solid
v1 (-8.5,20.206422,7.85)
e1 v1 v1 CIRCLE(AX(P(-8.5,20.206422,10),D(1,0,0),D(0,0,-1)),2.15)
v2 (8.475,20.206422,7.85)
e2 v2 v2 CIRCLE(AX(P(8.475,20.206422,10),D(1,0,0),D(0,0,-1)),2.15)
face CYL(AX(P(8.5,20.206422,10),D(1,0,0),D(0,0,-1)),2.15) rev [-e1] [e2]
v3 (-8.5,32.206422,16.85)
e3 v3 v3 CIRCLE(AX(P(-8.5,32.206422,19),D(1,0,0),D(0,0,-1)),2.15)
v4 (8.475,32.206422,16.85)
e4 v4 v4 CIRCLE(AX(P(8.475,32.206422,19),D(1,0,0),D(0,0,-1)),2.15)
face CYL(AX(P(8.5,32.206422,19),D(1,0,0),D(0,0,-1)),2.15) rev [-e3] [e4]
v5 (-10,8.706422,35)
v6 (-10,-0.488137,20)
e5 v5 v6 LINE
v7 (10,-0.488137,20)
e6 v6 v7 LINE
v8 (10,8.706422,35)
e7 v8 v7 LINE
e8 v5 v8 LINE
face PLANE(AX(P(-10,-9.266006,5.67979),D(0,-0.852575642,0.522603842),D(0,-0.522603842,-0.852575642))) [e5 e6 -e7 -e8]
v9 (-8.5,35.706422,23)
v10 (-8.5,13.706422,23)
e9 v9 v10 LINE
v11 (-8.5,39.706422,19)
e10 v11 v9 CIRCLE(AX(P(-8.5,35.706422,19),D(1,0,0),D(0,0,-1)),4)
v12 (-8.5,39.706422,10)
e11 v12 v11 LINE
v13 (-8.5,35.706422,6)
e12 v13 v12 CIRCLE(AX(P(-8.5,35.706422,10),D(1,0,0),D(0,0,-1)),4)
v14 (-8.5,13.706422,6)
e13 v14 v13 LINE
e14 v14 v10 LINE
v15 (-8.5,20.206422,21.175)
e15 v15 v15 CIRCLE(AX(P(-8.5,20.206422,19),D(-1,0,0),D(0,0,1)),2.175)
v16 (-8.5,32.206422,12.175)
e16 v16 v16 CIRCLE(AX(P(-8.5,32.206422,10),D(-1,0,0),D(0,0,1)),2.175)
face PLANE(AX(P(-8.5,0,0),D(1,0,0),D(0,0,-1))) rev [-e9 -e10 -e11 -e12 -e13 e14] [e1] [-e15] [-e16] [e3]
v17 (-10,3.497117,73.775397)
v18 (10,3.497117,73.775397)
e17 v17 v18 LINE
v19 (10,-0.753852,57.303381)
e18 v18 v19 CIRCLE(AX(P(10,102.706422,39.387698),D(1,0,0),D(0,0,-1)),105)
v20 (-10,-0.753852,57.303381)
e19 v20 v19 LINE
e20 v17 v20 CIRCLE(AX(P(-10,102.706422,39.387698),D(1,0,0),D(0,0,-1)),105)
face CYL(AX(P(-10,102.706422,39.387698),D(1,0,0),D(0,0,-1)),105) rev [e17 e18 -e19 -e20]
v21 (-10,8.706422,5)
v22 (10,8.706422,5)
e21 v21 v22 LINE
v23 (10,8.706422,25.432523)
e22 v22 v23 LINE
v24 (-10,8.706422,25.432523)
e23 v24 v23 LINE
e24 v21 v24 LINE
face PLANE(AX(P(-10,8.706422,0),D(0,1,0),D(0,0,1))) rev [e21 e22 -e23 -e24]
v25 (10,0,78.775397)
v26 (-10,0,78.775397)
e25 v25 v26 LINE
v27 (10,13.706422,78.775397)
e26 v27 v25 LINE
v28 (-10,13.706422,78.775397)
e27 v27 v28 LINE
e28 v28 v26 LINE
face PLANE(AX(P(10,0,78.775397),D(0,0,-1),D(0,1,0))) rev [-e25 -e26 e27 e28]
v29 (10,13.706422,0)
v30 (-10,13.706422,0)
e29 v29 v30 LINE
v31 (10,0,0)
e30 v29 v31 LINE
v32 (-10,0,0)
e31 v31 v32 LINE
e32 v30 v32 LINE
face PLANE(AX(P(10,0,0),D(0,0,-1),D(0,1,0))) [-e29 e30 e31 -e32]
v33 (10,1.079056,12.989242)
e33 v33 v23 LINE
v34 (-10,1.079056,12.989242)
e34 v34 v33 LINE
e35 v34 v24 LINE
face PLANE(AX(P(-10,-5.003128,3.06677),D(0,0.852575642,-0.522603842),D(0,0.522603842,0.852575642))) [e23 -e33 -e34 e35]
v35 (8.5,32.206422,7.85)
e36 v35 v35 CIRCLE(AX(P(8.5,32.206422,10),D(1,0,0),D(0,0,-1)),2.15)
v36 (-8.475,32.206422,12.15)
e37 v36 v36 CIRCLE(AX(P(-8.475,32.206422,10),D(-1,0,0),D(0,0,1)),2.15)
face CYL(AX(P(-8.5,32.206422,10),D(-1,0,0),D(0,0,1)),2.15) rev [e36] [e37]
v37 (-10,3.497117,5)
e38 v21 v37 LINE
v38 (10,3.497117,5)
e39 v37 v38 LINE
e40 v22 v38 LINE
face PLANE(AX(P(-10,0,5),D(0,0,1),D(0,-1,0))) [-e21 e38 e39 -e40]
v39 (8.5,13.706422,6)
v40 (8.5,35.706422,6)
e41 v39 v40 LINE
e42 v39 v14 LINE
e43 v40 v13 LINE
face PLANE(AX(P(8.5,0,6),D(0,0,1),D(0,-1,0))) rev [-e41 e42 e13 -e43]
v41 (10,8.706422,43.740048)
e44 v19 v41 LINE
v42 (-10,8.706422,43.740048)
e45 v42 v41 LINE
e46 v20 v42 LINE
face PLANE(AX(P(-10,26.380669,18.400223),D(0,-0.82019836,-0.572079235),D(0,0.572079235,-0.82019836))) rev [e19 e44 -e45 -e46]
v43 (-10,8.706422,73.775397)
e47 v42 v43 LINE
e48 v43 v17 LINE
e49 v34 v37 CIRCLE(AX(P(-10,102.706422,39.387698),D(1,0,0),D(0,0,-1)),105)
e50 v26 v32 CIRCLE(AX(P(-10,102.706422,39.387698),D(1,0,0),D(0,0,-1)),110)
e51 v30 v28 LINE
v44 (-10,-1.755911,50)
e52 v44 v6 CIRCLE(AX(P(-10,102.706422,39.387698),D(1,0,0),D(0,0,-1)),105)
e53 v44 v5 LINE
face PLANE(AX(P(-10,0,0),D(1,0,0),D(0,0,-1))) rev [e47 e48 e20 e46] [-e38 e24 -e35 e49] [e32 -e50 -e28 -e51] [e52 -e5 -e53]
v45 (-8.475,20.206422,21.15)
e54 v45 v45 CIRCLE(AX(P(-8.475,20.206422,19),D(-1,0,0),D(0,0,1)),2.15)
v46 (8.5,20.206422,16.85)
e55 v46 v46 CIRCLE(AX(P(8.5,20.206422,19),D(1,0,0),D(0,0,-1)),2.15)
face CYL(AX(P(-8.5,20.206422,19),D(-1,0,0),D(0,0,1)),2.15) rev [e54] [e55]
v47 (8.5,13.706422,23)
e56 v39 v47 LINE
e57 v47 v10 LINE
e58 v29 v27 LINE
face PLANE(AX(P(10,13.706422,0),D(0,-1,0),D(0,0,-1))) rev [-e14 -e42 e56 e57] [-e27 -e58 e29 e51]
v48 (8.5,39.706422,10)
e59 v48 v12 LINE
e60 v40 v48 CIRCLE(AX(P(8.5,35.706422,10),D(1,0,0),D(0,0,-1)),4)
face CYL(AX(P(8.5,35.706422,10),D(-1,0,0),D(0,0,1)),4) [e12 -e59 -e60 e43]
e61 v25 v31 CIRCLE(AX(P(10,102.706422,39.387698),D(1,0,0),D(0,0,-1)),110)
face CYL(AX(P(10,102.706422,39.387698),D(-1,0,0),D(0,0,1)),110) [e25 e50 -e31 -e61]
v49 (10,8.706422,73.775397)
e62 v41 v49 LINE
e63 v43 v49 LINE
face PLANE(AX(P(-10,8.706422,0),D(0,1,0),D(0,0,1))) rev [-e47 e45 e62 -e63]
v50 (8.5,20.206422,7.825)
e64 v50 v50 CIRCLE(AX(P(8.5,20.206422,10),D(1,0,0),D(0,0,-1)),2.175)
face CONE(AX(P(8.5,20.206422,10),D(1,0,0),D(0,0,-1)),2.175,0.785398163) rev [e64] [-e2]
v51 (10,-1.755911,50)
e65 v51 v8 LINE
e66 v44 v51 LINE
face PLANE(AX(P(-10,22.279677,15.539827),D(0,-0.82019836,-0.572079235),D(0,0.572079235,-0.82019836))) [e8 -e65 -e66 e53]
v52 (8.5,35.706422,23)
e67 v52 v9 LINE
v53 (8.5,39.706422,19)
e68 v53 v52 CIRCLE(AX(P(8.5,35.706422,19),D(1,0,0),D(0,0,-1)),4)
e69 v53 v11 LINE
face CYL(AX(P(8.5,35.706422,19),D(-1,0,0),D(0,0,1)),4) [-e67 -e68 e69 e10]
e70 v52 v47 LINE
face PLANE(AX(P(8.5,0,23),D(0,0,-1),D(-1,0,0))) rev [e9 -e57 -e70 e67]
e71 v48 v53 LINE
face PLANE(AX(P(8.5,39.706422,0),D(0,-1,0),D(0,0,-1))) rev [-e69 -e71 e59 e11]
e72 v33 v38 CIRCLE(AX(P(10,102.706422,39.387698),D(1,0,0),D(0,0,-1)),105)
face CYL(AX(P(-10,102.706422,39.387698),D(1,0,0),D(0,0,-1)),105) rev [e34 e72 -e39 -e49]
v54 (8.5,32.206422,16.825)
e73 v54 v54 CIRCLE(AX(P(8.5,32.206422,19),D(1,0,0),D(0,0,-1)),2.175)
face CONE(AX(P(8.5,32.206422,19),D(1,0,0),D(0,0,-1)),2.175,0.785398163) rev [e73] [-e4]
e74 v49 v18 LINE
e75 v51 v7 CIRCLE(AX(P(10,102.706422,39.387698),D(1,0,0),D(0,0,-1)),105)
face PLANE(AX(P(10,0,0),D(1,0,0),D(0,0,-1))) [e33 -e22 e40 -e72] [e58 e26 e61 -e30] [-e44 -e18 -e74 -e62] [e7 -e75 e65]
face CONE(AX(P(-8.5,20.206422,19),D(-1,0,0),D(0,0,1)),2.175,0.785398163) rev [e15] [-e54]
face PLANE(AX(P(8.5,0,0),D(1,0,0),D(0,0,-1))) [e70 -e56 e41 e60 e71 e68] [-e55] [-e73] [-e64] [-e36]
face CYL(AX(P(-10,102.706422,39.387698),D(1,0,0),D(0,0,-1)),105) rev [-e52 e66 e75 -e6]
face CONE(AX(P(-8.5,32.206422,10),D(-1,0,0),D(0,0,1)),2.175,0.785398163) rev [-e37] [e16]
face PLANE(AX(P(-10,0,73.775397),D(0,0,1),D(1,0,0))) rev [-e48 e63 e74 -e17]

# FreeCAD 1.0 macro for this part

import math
import FreeCAD as App
import Part
import Sketcher

V = App.Vector

doc = App.newDocument("Part")
body = doc.addObject("PartDesign::Body", "Body")

# Sketch on YZ plane
sketch1 = body.newObject("Sketcher::SketchObject", "Sketch")
sketch1.AttachmentSupport = (doc.getObject("YZ_Plane"), [""])
sketch1.MapMode = "FlatFace"
sketch1.addGeometry(Part.LineSegment(V(14, 0, 0), V(14, 79, 0)), False)
sketch1.addGeometry(Part.LineSegment(V(14, 79, 0), V(0, 79, 0)), False)
sketch1.addGeometry(Part.ArcOfCircle(Part.Circle(V(103, 39, 0), V(0, 0, 1), 110), math.radians(159), math.radians(180)), False)
sketch1.addGeometry(Part.ArcOfCircle(Part.Circle(V(103, 39, 0), V(0, 0, 1), 110), math.radians(180), math.radians(201)), False)
sketch1.addGeometry(Part.LineSegment(V(0, 0, 0), V(14, 0, 0)), False)
sketch1.addConstraint(Sketcher.Constraint("Coincident", 0, 2, 1, 1))
sketch1.addConstraint(Sketcher.Constraint("Coincident", 1, 2, 2, 1))
sketch1.addConstraint(Sketcher.Constraint("Tangent", 2, 2, 3, 1))
sketch1.addConstraint(Sketcher.Constraint("Coincident", 3, 2, 4, 1))
sketch1.addConstraint(Sketcher.Constraint("Coincident", 4, 2, 0, 1))
sketch1.addConstraint(Sketcher.Constraint("Vertical", 0))
sketch1.addConstraint(Sketcher.Constraint("Horizontal", 1))
sketch1.addConstraint(Sketcher.Constraint("Horizontal", 4))
sketch1.addConstraint(Sketcher.Constraint("Coincident", 3, 2, -1, 1))
sketch1.addConstraint(Sketcher.Constraint("Equal", 2, 3))
sketch1.addConstraint(Sketcher.Constraint("PointOnObject", 1, 2, -2))
sketch1.addConstraint(Sketcher.Constraint("Horizontal", 3, 3, 2, 2))
sketch1.addConstraint(Sketcher.Constraint("Radius", 2, 110.0))
sketch1.addConstraint(Sketcher.Constraint("DistanceX", 0, 2, 2, 3, 89.0))
sketch1.addConstraint(Sketcher.Constraint("DistanceY", -1, 1, 2, 3, 39.387698))
pad1 = body.newObject("PartDesign::Pad", "Pad")
pad1.Profile = sketch1
pad1.Type = "TwoLengths"
pad1.Length = 10
pad1.Length2 = 10

# Sketch on YZ plane
sketch2 = body.newObject("Sketcher::SketchObject", "Sketch001")
sketch2.AttachmentSupport = (doc.getObject("YZ_Plane"), [""])
sketch2.MapMode = "FlatFace"
sketch2.AttachmentOffset = App.Placement(V(0, 0, -8.5), App.Rotation())
sketch2.addGeometry(Part.LineSegment(V(13.7, 23, 0), V(13.7, 6, 0)), False)
sketch2.addGeometry(Part.LineSegment(V(13.7, 6, 0), V(35.7, 6, 0)), False)
sketch2.addGeometry(Part.ArcOfCircle(Part.Circle(V(35.7, 10, 0), V(0, 0, 1), 4), math.radians(-90), math.radians(0)), False)
sketch2.addGeometry(Part.LineSegment(V(39.7, 10, 0), V(39.7, 19, 0)), False)
sketch2.addGeometry(Part.ArcOfCircle(Part.Circle(V(35.7, 19, 0), V(0, 0, 1), 4), math.radians(0), math.radians(90)), False)
sketch2.addGeometry(Part.LineSegment(V(35.7, 23, 0), V(13.7, 23, 0)), False)
sketch2.addConstraint(Sketcher.Constraint("Coincident", 0, 2, 1, 1))
sketch2.addConstraint(Sketcher.Constraint("Tangent", 1, 2, 2, 1))
sketch2.addConstraint(Sketcher.Constraint("Tangent", 2, 2, 3, 1))
sketch2.addConstraint(Sketcher.Constraint("Tangent", 3, 2, 4, 1))
sketch2.addConstraint(Sketcher.Constraint("Tangent", 4, 2, 5, 1))
sketch2.addConstraint(Sketcher.Constraint("Coincident", 5, 2, 0, 1))
sketch2.addConstraint(Sketcher.Constraint("Vertical", 0))
sketch2.addConstraint(Sketcher.Constraint("Horizontal", 1))
sketch2.addConstraint(Sketcher.Constraint("Vertical", 3))
sketch2.addConstraint(Sketcher.Constraint("Horizontal", 5))
sketch2.addConstraint(Sketcher.Constraint("Equal", 2, 4))
sketch2.addConstraint(Sketcher.Constraint("Radius", 2, 4.0))
sketch2.addConstraint(Sketcher.Constraint("DistanceX", 1, 1, 1, 2, 22.0))
sketch2.addConstraint(Sketcher.Constraint("DistanceY", 0, 2, 0, 1, 17.0))
sketch2.addConstraint(Sketcher.Constraint("DistanceY", -1, 1, 2, 3, 10.0))
sketch2.addConstraint(Sketcher.Constraint("DistanceX", -1, 1, 2, 3, 35.706422))
pad2 = body.newObject("PartDesign::Pad", "Pad001")
pad2.Profile = sketch2
pad2.Length = 17

# Sketch on YZ plane
sketch3 = body.newObject("Sketcher::SketchObject", "Sketch002")
sketch3.AttachmentSupport = (doc.getObject("YZ_Plane"), [""])
sketch3.MapMode = "FlatFace"
sketch3.AttachmentOffset = App.Placement(V(0, 0, -8.5), App.Rotation())
sketch3.addGeometry(Part.Circle(V(32.2, 10, 0), V(0, 0, 1), 2.1), False)
sketch3.addGeometry(Part.Circle(V(20.2, 19, 0), V(0, 0, 1), 2.1), False)
sketch3.addConstraint(Sketcher.Constraint("Equal", 0, 1))
sketch3.addConstraint(Sketcher.Constraint("Diameter", 0, 4.3))
sketch3.addConstraint(Sketcher.Constraint("DistanceY", -1, 1, 0, 3, 10.0))
sketch3.addConstraint(Sketcher.Constraint("DistanceY", -1, 1, 1, 3, 19.0))
sketch3.addConstraint(Sketcher.Constraint("DistanceX", 1, 3, 0, 3, 12.0))
sketch3.addConstraint(Sketcher.Constraint("DistanceX", -1, 1, 0, 3, 32.206422))
doc.recompute()
hole = body.newObject("PartDesign::Hole", "Hole")
hole.Profile = sketch3
hole.ThreadType = "None"
hole.Diameter = 4.3
hole.DepthType = "ThroughAll"
hole.HoleCutType = "Countersink"
hole.HoleCutDiameter = 4.35
hole.HoleCutCountersinkAngle = 90
hole.Reversed = True

# Sketch on YZ plane
sketch4 = body.newObject("Sketcher::SketchObject", "Sketch003")
sketch4.AttachmentSupport = (doc.getObject("YZ_Plane"), [""])
sketch4.MapMode = "FlatFace"
sketch4.AttachmentOffset = App.Placement(V(0, 0, 8.5), App.Rotation())
sketch4.addGeometry(Part.Circle(V(32.2, 19, 0), V(0, 0, 1), 2.1), False)
sketch4.addGeometry(Part.Circle(V(20.2, 10, 0), V(0, 0, 1), 2.1), False)
sketch4.addConstraint(Sketcher.Constraint("Equal", 0, 1))
sketch4.addConstraint(Sketcher.Constraint("Diameter", 0, 4.3))
sketch4.addConstraint(Sketcher.Constraint("DistanceY", -1, 1, 0, 3, 19.0))
sketch4.addConstraint(Sketcher.Constraint("DistanceY", -1, 1, 1, 3, 10.0))
sketch4.addConstraint(Sketcher.Constraint("DistanceX", 1, 3, 0, 3, 12.0))
sketch4.addConstraint(Sketcher.Constraint("DistanceX", -1, 1, 0, 3, 32.206422))
doc.recompute()
hole2 = body.newObject("PartDesign::Hole", "Hole001")
hole2.Profile = sketch4
hole2.ThreadType = "None"
hole2.Diameter = 4.3
hole2.DepthType = "ThroughAll"
hole2.HoleCutType = "Countersink"
hole2.HoleCutDiameter = 4.35
hole2.HoleCutCountersinkAngle = 90

# Sketch on YZ plane
sketch5 = body.newObject("Sketcher::SketchObject", "Sketch004")
sketch5.AttachmentSupport = (doc.getObject("YZ_Plane"), [""])
sketch5.MapMode = "FlatFace"
sketch5.addGeometry(Part.LineSegment(V(3, 5, 0), V(9, 5, 0)), False)
sketch5.addGeometry(Part.LineSegment(V(9, 5, 0), V(9, 25, 0)), False)
sketch5.addGeometry(Part.LineSegment(V(9, 25, 0), V(1, 13, 0)), False)
sketch5.addGeometry(Part.ArcOfCircle(Part.Circle(V(103, 39, 0), V(0, 0, 1), 105), math.radians(-165.44), math.radians(-160.88)), False)
sketch5.addGeometry(Part.ArcOfCircle(Part.Circle(V(103, 39, 0), V(0, 0, 1), 105), math.radians(-180), math.radians(-169.36)), False)
sketch5.addGeometry(Part.LineSegment(V(0, 20, 0), V(9, 35, 0)), False)
sketch5.addGeometry(Part.LineSegment(V(9, 35, 0), V(-2, 50, 0)), False)
sketch5.addGeometry(Part.ArcOfCircle(Part.Circle(V(103, 39, 0), V(0, 0, 1), 105), math.radians(174.2), math.radians(180)), False)
sketch5.addGeometry(Part.LineSegment(V(-1, 57, 0), V(9, 44, 0)), False)
sketch5.addGeometry(Part.LineSegment(V(9, 44, 0), V(9, 74, 0)), False)
sketch5.addGeometry(Part.LineSegment(V(9, 74, 0), V(3, 74, 0)), False)
sketch5.addGeometry(Part.ArcOfCircle(Part.Circle(V(103, 39, 0), V(0, 0, 1), 105), math.radians(160.88), math.radians(170.18)), False)
sketch5.addConstraint(Sketcher.Constraint("Coincident", 0, 2, 1, 1))
sketch5.addConstraint(Sketcher.Constraint("Coincident", 1, 2, 2, 1))
sketch5.addConstraint(Sketcher.Constraint("Coincident", 2, 2, 3, 1))
sketch5.addConstraint(Sketcher.Constraint("Coincident", 3, 2, 0, 1))
sketch5.addConstraint(Sketcher.Constraint("Coincident", 4, 2, 5, 1))
sketch5.addConstraint(Sketcher.Constraint("Coincident", 5, 2, 6, 1))
sketch5.addConstraint(Sketcher.Constraint("Coincident", 6, 2, 7, 1))
sketch5.addConstraint(Sketcher.Constraint("Tangent", 7, 2, 4, 1))
sketch5.addConstraint(Sketcher.Constraint("Coincident", 8, 2, 9, 1))
sketch5.addConstraint(Sketcher.Constraint("Coincident", 9, 2, 10, 1))
sketch5.addConstraint(Sketcher.Constraint("Coincident", 10, 2, 11, 1))
sketch5.addConstraint(Sketcher.Constraint("Coincident", 11, 2, 8, 1))
sketch5.addConstraint(Sketcher.Constraint("Horizontal", 0))
sketch5.addConstraint(Sketcher.Constraint("Vertical", 1))
sketch5.addConstraint(Sketcher.Constraint("Vertical", 9))
sketch5.addConstraint(Sketcher.Constraint("Horizontal", 10))
sketch5.addConstraint(Sketcher.Constraint("Coincident", 4, 3, 3, 3))
sketch5.addConstraint(Sketcher.Constraint("Coincident", 11, 3, 3, 3))
sketch5.addConstraint(Sketcher.Constraint("Equal", 3, 4))
sketch5.addConstraint(Sketcher.Constraint("Equal", 4, 7))
sketch5.addConstraint(Sketcher.Constraint("Equal", 7, 11))
sketch5.addConstraint(Sketcher.Constraint("Parallel", 2, 5))
sketch5.addConstraint(Sketcher.Constraint("Parallel", 6, 8))
sketch5.addConstraint(Sketcher.Constraint("Horizontal", 11, 3, 7, 2))
sketch5.addConstraint(Sketcher.Constraint("Vertical", 1, 2, 5, 2))
sketch5.addConstraint(Sketcher.Constraint("Vertical", 5, 2, 8, 2))
sketch5.addConstraint(Sketcher.Constraint("Vertical", 3, 2, 10, 2))
sketch5.addConstraint(Sketcher.Constraint("Radius", 3, 105.000001))
sketch5.addConstraint(Sketcher.Constraint("DistanceY", -1, 1, 0, 2, 5.0))
sketch5.addConstraint(Sketcher.Constraint("DistanceY", -1, 1, 4, 2, 20.0))
sketch5.addConstraint(Sketcher.Constraint("DistanceY", -1, 1, 5, 2, 35.0))
sketch5.addConstraint(Sketcher.Constraint("DistanceY", -1, 1, 6, 2, 50.0))
sketch5.addConstraint(Sketcher.Constraint("DistanceX", 0, 2, 7, 3, 94.0))
sketch5.addConstraint(Sketcher.Constraint("DistanceY", 9, 1, 9, 2, 30.035349))
sketch5.addConstraint(Sketcher.Constraint("DistanceY", -1, 1, 3, 3, 39.387699))
sketch5.addConstraint(Sketcher.Constraint("Distance", 2, 14.594929))
sketch5.addConstraint(Sketcher.Constraint("DistanceX", 6, 2, -1, 1, 1.755911))
pocket1 = body.newObject("PartDesign::Pocket", "Pocket")
pocket1.Profile = sketch5
pocket1.Type = "ThroughAll"
pocket1.Midplane = True

doc.recompute()
